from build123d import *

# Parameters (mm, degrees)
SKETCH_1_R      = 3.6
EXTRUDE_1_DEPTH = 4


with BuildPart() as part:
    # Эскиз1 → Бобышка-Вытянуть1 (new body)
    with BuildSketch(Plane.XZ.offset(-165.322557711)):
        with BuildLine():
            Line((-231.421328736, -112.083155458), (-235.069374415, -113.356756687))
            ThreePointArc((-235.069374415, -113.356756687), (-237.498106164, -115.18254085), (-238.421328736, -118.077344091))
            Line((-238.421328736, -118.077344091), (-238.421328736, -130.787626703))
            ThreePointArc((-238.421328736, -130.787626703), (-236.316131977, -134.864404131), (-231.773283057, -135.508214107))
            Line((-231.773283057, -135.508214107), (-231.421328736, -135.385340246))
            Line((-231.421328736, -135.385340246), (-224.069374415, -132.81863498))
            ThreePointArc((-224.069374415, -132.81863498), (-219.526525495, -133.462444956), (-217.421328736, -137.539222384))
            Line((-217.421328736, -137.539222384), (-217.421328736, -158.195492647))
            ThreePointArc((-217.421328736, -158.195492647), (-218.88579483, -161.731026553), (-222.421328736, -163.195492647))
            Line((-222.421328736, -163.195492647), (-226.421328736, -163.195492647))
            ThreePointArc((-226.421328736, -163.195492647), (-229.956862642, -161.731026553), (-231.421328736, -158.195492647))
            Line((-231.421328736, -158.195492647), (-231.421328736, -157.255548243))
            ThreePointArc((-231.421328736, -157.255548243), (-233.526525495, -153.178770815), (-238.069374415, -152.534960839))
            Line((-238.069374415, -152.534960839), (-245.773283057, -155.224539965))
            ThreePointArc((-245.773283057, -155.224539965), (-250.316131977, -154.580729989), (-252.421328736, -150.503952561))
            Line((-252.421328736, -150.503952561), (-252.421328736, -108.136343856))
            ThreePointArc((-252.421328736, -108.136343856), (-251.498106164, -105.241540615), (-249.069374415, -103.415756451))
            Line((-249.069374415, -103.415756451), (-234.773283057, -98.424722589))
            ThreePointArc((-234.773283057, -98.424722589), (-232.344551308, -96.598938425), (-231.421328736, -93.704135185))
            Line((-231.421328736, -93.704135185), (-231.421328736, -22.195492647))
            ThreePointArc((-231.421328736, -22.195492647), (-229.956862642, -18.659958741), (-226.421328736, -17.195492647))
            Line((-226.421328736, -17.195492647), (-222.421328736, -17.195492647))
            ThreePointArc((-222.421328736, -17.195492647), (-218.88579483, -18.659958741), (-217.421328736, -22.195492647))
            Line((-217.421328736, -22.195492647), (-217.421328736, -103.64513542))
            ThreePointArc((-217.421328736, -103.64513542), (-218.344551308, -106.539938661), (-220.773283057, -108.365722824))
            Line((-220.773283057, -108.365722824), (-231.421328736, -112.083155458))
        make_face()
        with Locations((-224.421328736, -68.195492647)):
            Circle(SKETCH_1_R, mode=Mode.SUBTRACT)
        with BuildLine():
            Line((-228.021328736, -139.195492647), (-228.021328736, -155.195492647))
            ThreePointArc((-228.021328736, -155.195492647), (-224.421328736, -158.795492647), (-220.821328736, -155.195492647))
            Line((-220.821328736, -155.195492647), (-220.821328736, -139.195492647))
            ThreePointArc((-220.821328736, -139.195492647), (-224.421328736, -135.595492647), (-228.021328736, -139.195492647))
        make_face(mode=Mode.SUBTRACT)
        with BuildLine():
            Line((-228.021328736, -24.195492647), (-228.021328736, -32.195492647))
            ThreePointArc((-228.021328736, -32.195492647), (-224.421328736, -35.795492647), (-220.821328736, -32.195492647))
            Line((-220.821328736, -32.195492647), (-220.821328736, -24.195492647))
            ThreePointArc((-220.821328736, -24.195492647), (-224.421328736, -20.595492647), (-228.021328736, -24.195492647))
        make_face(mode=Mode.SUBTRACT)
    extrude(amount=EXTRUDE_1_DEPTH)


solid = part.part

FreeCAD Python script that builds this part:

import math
import FreeCAD as App
import Part
import Sketcher

V = App.Vector

doc = App.newDocument("Part")
body = doc.addObject("PartDesign::Body", "Body")

# Sketch on XZ plane
sketch1 = body.newObject("Sketcher::SketchObject", "Sketch")
sketch1.AttachmentSupport = (doc.getObject("XZ_Plane"), [""])
sketch1.MapMode = "FlatFace"
sketch1.AttachmentOffset = App.Placement(V(0, 0, -165.322558), App.Rotation())
sketch1.addGeometry([
    Part.LineSegment(V(-235.069374, -113.356757, 0), V(-231.421329, -112.083155, 0)),  # 0
    Part.LineSegment(V(-231.421329, -112.083155, 0), V(-220.773283, -108.365723, 0)),  # 1
    Part.ArcOfCircle(Part.Circle(V(-222.421329, -103.645135, 0), V(0, 0, 1), 5), math.radians(-70.754947), math.radians(0)),  # 2
    Part.LineSegment(V(-217.421329, -103.645135, 0), V(-217.421329, -22.195493, 0)),  # 3
    Part.ArcOfCircle(Part.Circle(V(-222.421329, -22.195493, 0), V(0, 0, 1), 5), math.radians(0), math.radians(90)),  # 4
    Part.LineSegment(V(-222.421329, -17.195493, 0), V(-226.421329, -17.195493, 0)),  # 5
    Part.ArcOfCircle(Part.Circle(V(-226.421329, -22.195493, 0), V(0, 0, 1), 5), math.radians(90), math.radians(180)),  # 6
    Part.LineSegment(V(-231.421329, -22.195493, 0), V(-231.421329, -93.704135, 0)),  # 7
    Part.ArcOfCircle(Part.Circle(V(-236.421329, -93.704135, 0), V(0, 0, 1), 5), math.radians(-70.754947), math.radians(0)),  # 8
    Part.LineSegment(V(-234.773283, -98.424723, 0), V(-249.069374, -103.415756, 0)),  # 9
    Part.ArcOfCircle(Part.Circle(V(-247.421329, -108.136344, 0), V(0, 0, 1), 5), math.radians(109.245053), math.radians(180)),  # 10
    Part.LineSegment(V(-252.421329, -108.136344, 0), V(-252.421329, -150.503953, 0)),  # 11
    Part.ArcOfCircle(Part.Circle(V(-247.421329, -150.503953, 0), V(0, 0, 1), 5), math.radians(180), math.radians(289.245053)),  # 12
    Part.LineSegment(V(-245.773283, -155.22454, 0), V(-238.069374, -152.534961, 0)),  # 13
    Part.ArcOfCircle(Part.Circle(V(-236.421329, -157.255548, 0), V(0, 0, 1), 5), math.radians(0), math.radians(109.245053)),  # 14
    Part.LineSegment(V(-231.421329, -157.255548, 0), V(-231.421329, -158.195493, 0)),  # 15
    Part.ArcOfCircle(Part.Circle(V(-226.421329, -158.195493, 0), V(0, 0, 1), 5), math.radians(180), math.radians(270)),  # 16
    Part.LineSegment(V(-226.421329, -163.195493, 0), V(-222.421329, -163.195493, 0)),  # 17
    Part.ArcOfCircle(Part.Circle(V(-222.421329, -158.195493, 0), V(0, 0, 1), 5), math.radians(-90), math.radians(0)),  # 18
    Part.LineSegment(V(-217.421329, -158.195493, 0), V(-217.421329, -137.539222, 0)),  # 19
    Part.ArcOfCircle(Part.Circle(V(-222.421329, -137.539222, 0), V(0, 0, 1), 5), math.radians(0), math.radians(109.245053)),  # 20
    Part.LineSegment(V(-224.069374, -132.818635, 0), V(-231.421329, -135.38534, 0)),  # 21
    Part.LineSegment(V(-231.421329, -135.38534, 0), V(-231.773283, -135.508214, 0)),  # 22
    Part.ArcOfCircle(Part.Circle(V(-233.421329, -130.787627, 0), V(0, 0, 1), 5), math.radians(180), math.radians(289.245053)),  # 23
    Part.LineSegment(V(-238.421329, -130.787627, 0), V(-238.421329, -118.077344, 0)),  # 24
    Part.ArcOfCircle(Part.Circle(V(-233.421329, -118.077344, 0), V(0, 0, 1), 5), math.radians(109.245053), math.radians(180)),  # 25
    Part.ArcOfCircle(Part.Circle(V(-224.421329, -139.195493, 0), V(0, 0, 1), 3.6), math.radians(0), math.radians(180)),  # 26
    Part.LineSegment(V(-220.821329, -139.195493, 0), V(-220.821329, -155.195493, 0)),  # 27
    Part.ArcOfCircle(Part.Circle(V(-224.421329, -155.195493, 0), V(0, 0, 1), 3.6), math.radians(180), math.radians(360)),  # 28
    Part.LineSegment(V(-228.021329, -155.195493, 0), V(-228.021329, -139.195493, 0)),  # 29
    Part.Circle(V(-224.421329, -68.195493, 0), V(0, 0, 1), 3.6),  # 30
    Part.ArcOfCircle(Part.Circle(V(-224.421329, -24.195493, 0), V(0, 0, 1), 3.6), math.radians(0), math.radians(180)),  # 31
    Part.LineSegment(V(-220.821329, -24.195493, 0), V(-220.821329, -32.195493, 0)),  # 32
    Part.ArcOfCircle(Part.Circle(V(-224.421329, -32.195493, 0), V(0, 0, 1), 3.6), math.radians(180), math.radians(360)),  # 33
    Part.LineSegment(V(-228.021329, -32.195493, 0), V(-228.021329, -24.195493, 0)),  # 34
], False)
sketch1.addConstraint([
    Sketcher.Constraint("Coincident", 0, 2, 1, 1),
    Sketcher.Constraint("Tangent", 1, 2, 2, 1),
    Sketcher.Constraint("Tangent", 2, 2, 3, 1),
    Sketcher.Constraint("Tangent", 3, 2, 4, 1),
    Sketcher.Constraint("Tangent", 4, 2, 5, 1),
    Sketcher.Constraint("Tangent", 5, 2, 6, 1),
    Sketcher.Constraint("Tangent", 6, 2, 7, 1),
    Sketcher.Constraint("Tangent", 7, 2, 8, 2),
    Sketcher.Constraint("Tangent", 8, 1, 9, 1),
    Sketcher.Constraint("Tangent", 9, 2, 10, 1),
    Sketcher.Constraint("Tangent", 10, 2, 11, 1),
    Sketcher.Constraint("Tangent", 11, 2, 12, 1),
    Sketcher.Constraint("Tangent", 12, 2, 13, 1),
    Sketcher.Constraint("Tangent", 13, 2, 14, 2),
    Sketcher.Constraint("Tangent", 14, 1, 15, 1),
    Sketcher.Constraint("Tangent", 15, 2, 16, 1),
    Sketcher.Constraint("Tangent", 16, 2, 17, 1),
    Sketcher.Constraint("Tangent", 17, 2, 18, 1),
    Sketcher.Constraint("Tangent", 18, 2, 19, 1),
    Sketcher.Constraint("Tangent", 19, 2, 20, 1),
    Sketcher.Constraint("Tangent", 20, 2, 21, 1),
    Sketcher.Constraint("Coincident", 21, 2, 22, 1),
    Sketcher.Constraint("Tangent", 22, 2, 23, 2),
    Sketcher.Constraint("Tangent", 23, 1, 24, 1),
    Sketcher.Constraint("Tangent", 24, 2, 25, 2),
    Sketcher.Constraint("Tangent", 25, 1, 0, 1),
    Sketcher.Constraint("Tangent", 26, 1, 27, 1),
    Sketcher.Constraint("Tangent", 27, 2, 28, 2),
    Sketcher.Constraint("Tangent", 28, 1, 29, 1),
    Sketcher.Constraint("Tangent", 29, 2, 26, 2),
    Sketcher.Constraint("Tangent", 31, 1, 32, 1),
    Sketcher.Constraint("Tangent", 32, 2, 33, 2),
    Sketcher.Constraint("Tangent", 33, 1, 34, 1),
    Sketcher.Constraint("Tangent", 34, 2, 31, 2),
    Sketcher.Constraint("Vertical", 3),
    Sketcher.Constraint("Horizontal", 5),
    Sketcher.Constraint("Vertical", 7),
    Sketcher.Constraint("Vertical", 11),
    Sketcher.Constraint("Vertical", 15),
    Sketcher.Constraint("Horizontal", 17),
    Sketcher.Constraint("Vertical", 19),
    Sketcher.Constraint("Vertical", 24),
    Sketcher.Constraint("Vertical", 27),
    Sketcher.Constraint("Vertical", 29),
    Sketcher.Constraint("Vertical", 32),
    Sketcher.Constraint("Vertical", 34),
    Sketcher.Constraint("Equal", 2, 4),
    Sketcher.Constraint("Equal", 4, 6),
    Sketcher.Constraint("Equal", 6, 8),
    Sketcher.Constraint("Equal", 8, 10),
    Sketcher.Constraint("Equal", 10, 12),
    Sketcher.Constraint("Equal", 12, 14),
    Sketcher.Constraint("Equal", 14, 16),
    Sketcher.Constraint("Equal", 16, 18),
    Sketcher.Constraint("Equal", 18, 20),
    Sketcher.Constraint("Equal", 20, 23),
    Sketcher.Constraint("Equal", 23, 25),
    Sketcher.Constraint("Equal", 28, 30),
    Sketcher.Constraint("Equal", 30, 31),
    Sketcher.Constraint("Parallel", 0, 1),
    Sketcher.Constraint("Parallel", 1, 9),
    Sketcher.Constraint("Parallel", 9, 13),
    Sketcher.Constraint("Parallel", 13, 21),
    Sketcher.Constraint("Parallel", 21, 22),
    Sketcher.Constraint("Vertical", 8, 3, 14, 3),
    Sketcher.Constraint("Vertical", 4, 3, 18, 3),
    Sketcher.Constraint("Vertical", 28, 3, 30, 3),
    Sketcher.Constraint("Vertical", 30, 3, 31, 3),
    Sketcher.Constraint("Vertical", 0, 2, 6, 2),
    Sketcher.Constraint("Vertical", 15, 2, 21, 2),
    Sketcher.Constraint("Radius", 2, 5.0),
    Sketcher.Constraint("Diameter", 30, 7.2),
    Sketcher.Constraint("DistanceX", 5, 2, 5, 1, 4.0),
    Sketcher.Constraint("DistanceY", 27, 2, 27, 1, 16.0),
    Sketcher.Constraint("DistanceY", 32, 2, 32, 1, 8.0),
    Sketcher.Constraint("DistanceX", 10, 3, 8, 3, 11.0),
    Sketcher.Constraint("DistanceX", 23, 3, 20, 3, 11.0),
    Sketcher.Constraint("DistanceX", 26, 3, 20, 3, 2.0),
    Sketcher.Constraint("DistanceY", 16, 3, 26, 3, 19.0),
    Sketcher.Constraint("DistanceY", 30, 3, 4, 3, 46.0),
    Sketcher.Constraint("DistanceY", 31, 3, 4, 3, 2.0),
    Sketcher.Constraint("DistanceY", 2, 3, 8, 3, 9.941),
    Sketcher.Constraint("DistanceY", 11, 2, 11, 1, 42.367609),
    Sketcher.Constraint("DistanceY", 19, 1, 19, 2, 20.65627),
    Sketcher.Constraint("DistanceY", 0, 2, 9, 2, 8.667399),
    Sketcher.Constraint("DistanceY", 3, 1, 3, 2, 81.449643),
    Sketcher.Constraint("DistanceY", 15, 2, 15, 1, 0.939944),
    Sketcher.Constraint("DistanceX", 2, 3, -1, 1, 222.421329),
    Sketcher.Constraint("DistanceY", 14, 3, -1, 1, 157.255548),
])
pad1 = body.newObject("PartDesign::Pad", "Pad")
pad1.Profile = sketch1
pad1.Length = 4

doc.recompute()
